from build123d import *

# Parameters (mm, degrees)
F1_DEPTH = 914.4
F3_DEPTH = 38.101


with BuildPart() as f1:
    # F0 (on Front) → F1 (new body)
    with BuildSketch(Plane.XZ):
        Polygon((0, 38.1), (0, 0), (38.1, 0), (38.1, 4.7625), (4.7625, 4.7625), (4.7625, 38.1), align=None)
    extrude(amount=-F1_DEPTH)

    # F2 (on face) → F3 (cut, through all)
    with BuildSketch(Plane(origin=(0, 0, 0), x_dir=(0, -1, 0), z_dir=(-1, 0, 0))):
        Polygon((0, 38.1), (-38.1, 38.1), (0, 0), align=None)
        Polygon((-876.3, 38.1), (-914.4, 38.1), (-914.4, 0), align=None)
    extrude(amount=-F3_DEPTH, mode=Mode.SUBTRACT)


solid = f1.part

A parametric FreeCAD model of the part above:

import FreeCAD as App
import Part
import Sketcher

V = App.Vector
Q = App.Units.Quantity

doc = App.newDocument("Part")
body = doc.addObject("PartDesign::Body", "Body")

# Sketch on XZ plane
sketch1 = body.newObject("Sketcher::SketchObject", "Sketch")
sketch1.AttachmentSupport = (doc.getObject("XZ_Plane"), [""])
sketch1.MapMode = "FlatFace"
sketch1.addGeometry([
    Part.LineSegment(V(0, 38.1, 0), V(0, 0, 0)),  # 0
    Part.LineSegment(V(0, 0, 0), V(38.1, 0, 0)),  # 1
    Part.LineSegment(V(38.1, 0, 0), V(38.1, 4.8, 0)),  # 2
    Part.LineSegment(V(38.1, 4.8, 0), V(4.8, 4.8, 0)),  # 3
    Part.LineSegment(V(4.8, 4.8, 0), V(4.8, 38.1, 0)),  # 4
    Part.LineSegment(V(4.8, 38.1, 0), V(0, 38.1, 0)),  # 5
], False)
sketch1.addConstraint([
    Sketcher.Constraint("Coincident", 0, 2, 1, 1),
    Sketcher.Constraint("Coincident", 1, 2, 2, 1),
    Sketcher.Constraint("Coincident", 2, 2, 3, 1),
    Sketcher.Constraint("Coincident", 3, 2, 4, 1),
    Sketcher.Constraint("Coincident", 4, 2, 5, 1),
    Sketcher.Constraint("Coincident", 5, 2, 0, 1),
    Sketcher.Constraint("Vertical", 0),
    Sketcher.Constraint("Horizontal", 1),
    Sketcher.Constraint("Vertical", 2),
    Sketcher.Constraint("Horizontal", 3),
    Sketcher.Constraint("Vertical", 4),
    Sketcher.Constraint("Horizontal", 5),
    Sketcher.Constraint("Coincident", 0, 2, -1, 1),
    Sketcher.Constraint("Equal", 1, 0),
    Sketcher.Constraint("Equal", 5, 2),
    Sketcher.Constraint("DistanceX", 1, 1, 1, 2, Q("1.5 in")),
    Sketcher.Constraint("DistanceX", 3, 2, 3, 1, Q("1.3125 in")),
])
pad1 = body.newObject("PartDesign::Pad", "Pad")
pad1.Profile = sketch1
pad1.Length = Q("36 in")
pad1.Reversed = True

# Sketch on YZ plane
sketch2 = body.newObject("Sketcher::SketchObject", "Sketch001")
sketch2.AttachmentSupport = (doc.getObject("YZ_Plane"), [""])
sketch2.MapMode = "FlatFace"
sketch2.addGeometry([
    Part.LineSegment(V(0, 38, 0), V(38, 38, 0)),  # 0
    Part.LineSegment(V(38, 38, 0), V(0, 0, 0)),  # 1
    Part.LineSegment(V(0, 0, 0), V(0, 38, 0)),  # 2
    Part.LineSegment(V(876, 38, 0), V(914, 38, 0)),  # 3
    Part.LineSegment(V(914, 38, 0), V(914, 0, 0)),  # 4
    Part.LineSegment(V(914, 0, 0), V(876, 38, 0)),  # 5
], False)
sketch2.addConstraint([
    Sketcher.Constraint("Coincident", 0, 2, 1, 1),
    Sketcher.Constraint("Coincident", 1, 2, 2, 1),
    Sketcher.Constraint("Coincident", 2, 2, 0, 1),
    Sketcher.Constraint("Coincident", 3, 2, 4, 1),
    Sketcher.Constraint("Coincident", 4, 2, 5, 1),
    Sketcher.Constraint("Coincident", 5, 2, 3, 1),
    Sketcher.Constraint("Horizontal", 0),
    Sketcher.Constraint("Vertical", 2),
    Sketcher.Constraint("Horizontal", 3),
    Sketcher.Constraint("Vertical", 4),
    Sketcher.Constraint("Coincident", 1, 2, -1, 1),
    Sketcher.Constraint("PointOnObject", 4, 2, -1),
    Sketcher.Constraint("Perpendicular", 1, 5),
    Sketcher.Constraint("Horizontal", 2, 2, 3, 2),
    Sketcher.Constraint("Equal", 0, 3),
    Sketcher.Constraint("DistanceX", 0, 1, 0, 2, Q("1.5 in")),
    Sketcher.Constraint("DistanceX", -1, 1, 3, 2, Q("36 in")),
])
pocket1 = body.newObject("PartDesign::Pocket", "Pocket")
pocket1.Profile = sketch2
pocket1.Type = "ThroughAll"
pocket1.Reversed = True

doc.recompute()
